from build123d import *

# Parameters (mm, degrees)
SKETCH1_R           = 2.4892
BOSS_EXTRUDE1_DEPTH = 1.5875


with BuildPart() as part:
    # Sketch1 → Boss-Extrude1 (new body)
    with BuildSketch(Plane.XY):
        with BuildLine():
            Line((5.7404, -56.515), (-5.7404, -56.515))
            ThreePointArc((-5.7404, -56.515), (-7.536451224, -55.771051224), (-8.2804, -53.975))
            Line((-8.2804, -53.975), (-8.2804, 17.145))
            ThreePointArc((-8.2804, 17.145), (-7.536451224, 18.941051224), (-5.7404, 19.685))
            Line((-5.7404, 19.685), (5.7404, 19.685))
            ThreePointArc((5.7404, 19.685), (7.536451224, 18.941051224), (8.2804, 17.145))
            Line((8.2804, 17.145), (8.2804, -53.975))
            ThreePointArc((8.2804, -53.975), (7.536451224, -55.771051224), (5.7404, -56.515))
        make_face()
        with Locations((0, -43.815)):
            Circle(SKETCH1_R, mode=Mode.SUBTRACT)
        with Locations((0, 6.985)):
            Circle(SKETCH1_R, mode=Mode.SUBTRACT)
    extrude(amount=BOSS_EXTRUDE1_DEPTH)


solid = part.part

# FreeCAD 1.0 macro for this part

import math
import FreeCAD as App
import Part
import Sketcher
from FreeCAD import Vector
Q = App.Units.Quantity

doc = App.newDocument("Part")
body = doc.addObject("PartDesign::Body", "Body")

sketch1 = doc.addObject("Sketcher::SketchObject", "Sketch")
body.addObject(sketch1)
sketch1.AttachmentSupport = (doc.XY_Plane, [""])
sketch1.MapMode = "FlatFace"
sketch1.addGeometry(Part.LineSegment(Vector(-5.7, -56.5, 0), Vector(5.7, -56.5, 0)), False)
sketch1.addGeometry(Part.ArcOfCircle(Part.Circle(Vector(5.7, -54, 0), Vector(0, 0, 1), 2.5), math.radians(-90), math.radians(0)), False)
sketch1.addGeometry(Part.LineSegment(Vector(8.3, -54, 0), Vector(8.3, 17.1, 0)), False)
sketch1.addGeometry(Part.ArcOfCircle(Part.Circle(Vector(5.7, 17.1, 0), Vector(0, 0, 1), 2.5), math.radians(0), math.radians(90)), False)
sketch1.addGeometry(Part.LineSegment(Vector(5.7, 19.7, 0), Vector(-5.7, 19.7, 0)), False)
sketch1.addGeometry(Part.ArcOfCircle(Part.Circle(Vector(-5.7, 17.1, 0), Vector(0, 0, 1), 2.5), math.radians(90), math.radians(180)), False)
sketch1.addGeometry(Part.LineSegment(Vector(-8.3, 17.1, 0), Vector(-8.3, -54, 0)), False)
sketch1.addGeometry(Part.ArcOfCircle(Part.Circle(Vector(-5.7, -54, 0), Vector(0, 0, 1), 2.5), math.radians(-180), math.radians(-90)), False)
sketch1.addGeometry(Part.Circle(Vector(0, -43.8, 0), Vector(0, 0, 1), 2.5), False)
sketch1.addGeometry(Part.Circle(Vector(0, 7, 0), Vector(0, 0, 1), 2.5), False)
sketch1.addConstraint(Sketcher.Constraint("Tangent", 0, 2, 1, 1))
sketch1.addConstraint(Sketcher.Constraint("Tangent", 1, 2, 2, 1))
sketch1.addConstraint(Sketcher.Constraint("Tangent", 2, 2, 3, 1))
sketch1.addConstraint(Sketcher.Constraint("Tangent", 3, 2, 4, 1))
sketch1.addConstraint(Sketcher.Constraint("Tangent", 4, 2, 5, 1))
sketch1.addConstraint(Sketcher.Constraint("Tangent", 5, 2, 6, 1))
sketch1.addConstraint(Sketcher.Constraint("Tangent", 6, 2, 7, 1))
sketch1.addConstraint(Sketcher.Constraint("Tangent", 7, 2, 0, 1))
sketch1.addConstraint(Sketcher.Constraint("Horizontal", 0))
sketch1.addConstraint(Sketcher.Constraint("Vertical", 2))
sketch1.addConstraint(Sketcher.Constraint("Horizontal", 4))
sketch1.addConstraint(Sketcher.Constraint("Vertical", 6))
sketch1.addConstraint(Sketcher.Constraint("Equal", 1, 3))
sketch1.addConstraint(Sketcher.Constraint("Equal", 3, 5))
sketch1.addConstraint(Sketcher.Constraint("Equal", 5, 7))
sketch1.addConstraint(Sketcher.Constraint("Equal", 8, 9))
sketch1.addConstraint(Sketcher.Constraint("PointOnObject", 8, 3, -2))
sketch1.addConstraint(Sketcher.Constraint("PointOnObject", 9, 3, -2))
sketch1.addConstraint(Sketcher.Constraint("Radius", 1, Q("0.1 in")))
sketch1.addConstraint(Sketcher.Constraint("Diameter", 8, Q("0.196 in")))
sketch1.addConstraint(Sketcher.Constraint("DistanceY", 2, 1, 2, 2, Q("2.8 in")))
sketch1.addConstraint(Sketcher.Constraint("DistanceY", 8, 3, 9, 3, Q("2 in")))
sketch1.addConstraint(Sketcher.Constraint("DistanceY", 1, 3, 8, 3, Q("0.4 in")))
sketch1.addConstraint(Sketcher.Constraint("DistanceX", 0, 1, 0, 2, Q("0.452 in")))
sketch1.addConstraint(Sketcher.Constraint("DistanceX", -1, 1, 1, 3, Q("0.226 in")))
sketch1.addConstraint(Sketcher.Constraint("DistanceY", 1, 3, -1, 1, Q("2.125 in")))
pad1 = doc.addObject("PartDesign::Pad", "Pad")
body.addObject(pad1)
pad1.Profile = sketch1
pad1.Length = Q("0.0625 in")

doc.recompute()
